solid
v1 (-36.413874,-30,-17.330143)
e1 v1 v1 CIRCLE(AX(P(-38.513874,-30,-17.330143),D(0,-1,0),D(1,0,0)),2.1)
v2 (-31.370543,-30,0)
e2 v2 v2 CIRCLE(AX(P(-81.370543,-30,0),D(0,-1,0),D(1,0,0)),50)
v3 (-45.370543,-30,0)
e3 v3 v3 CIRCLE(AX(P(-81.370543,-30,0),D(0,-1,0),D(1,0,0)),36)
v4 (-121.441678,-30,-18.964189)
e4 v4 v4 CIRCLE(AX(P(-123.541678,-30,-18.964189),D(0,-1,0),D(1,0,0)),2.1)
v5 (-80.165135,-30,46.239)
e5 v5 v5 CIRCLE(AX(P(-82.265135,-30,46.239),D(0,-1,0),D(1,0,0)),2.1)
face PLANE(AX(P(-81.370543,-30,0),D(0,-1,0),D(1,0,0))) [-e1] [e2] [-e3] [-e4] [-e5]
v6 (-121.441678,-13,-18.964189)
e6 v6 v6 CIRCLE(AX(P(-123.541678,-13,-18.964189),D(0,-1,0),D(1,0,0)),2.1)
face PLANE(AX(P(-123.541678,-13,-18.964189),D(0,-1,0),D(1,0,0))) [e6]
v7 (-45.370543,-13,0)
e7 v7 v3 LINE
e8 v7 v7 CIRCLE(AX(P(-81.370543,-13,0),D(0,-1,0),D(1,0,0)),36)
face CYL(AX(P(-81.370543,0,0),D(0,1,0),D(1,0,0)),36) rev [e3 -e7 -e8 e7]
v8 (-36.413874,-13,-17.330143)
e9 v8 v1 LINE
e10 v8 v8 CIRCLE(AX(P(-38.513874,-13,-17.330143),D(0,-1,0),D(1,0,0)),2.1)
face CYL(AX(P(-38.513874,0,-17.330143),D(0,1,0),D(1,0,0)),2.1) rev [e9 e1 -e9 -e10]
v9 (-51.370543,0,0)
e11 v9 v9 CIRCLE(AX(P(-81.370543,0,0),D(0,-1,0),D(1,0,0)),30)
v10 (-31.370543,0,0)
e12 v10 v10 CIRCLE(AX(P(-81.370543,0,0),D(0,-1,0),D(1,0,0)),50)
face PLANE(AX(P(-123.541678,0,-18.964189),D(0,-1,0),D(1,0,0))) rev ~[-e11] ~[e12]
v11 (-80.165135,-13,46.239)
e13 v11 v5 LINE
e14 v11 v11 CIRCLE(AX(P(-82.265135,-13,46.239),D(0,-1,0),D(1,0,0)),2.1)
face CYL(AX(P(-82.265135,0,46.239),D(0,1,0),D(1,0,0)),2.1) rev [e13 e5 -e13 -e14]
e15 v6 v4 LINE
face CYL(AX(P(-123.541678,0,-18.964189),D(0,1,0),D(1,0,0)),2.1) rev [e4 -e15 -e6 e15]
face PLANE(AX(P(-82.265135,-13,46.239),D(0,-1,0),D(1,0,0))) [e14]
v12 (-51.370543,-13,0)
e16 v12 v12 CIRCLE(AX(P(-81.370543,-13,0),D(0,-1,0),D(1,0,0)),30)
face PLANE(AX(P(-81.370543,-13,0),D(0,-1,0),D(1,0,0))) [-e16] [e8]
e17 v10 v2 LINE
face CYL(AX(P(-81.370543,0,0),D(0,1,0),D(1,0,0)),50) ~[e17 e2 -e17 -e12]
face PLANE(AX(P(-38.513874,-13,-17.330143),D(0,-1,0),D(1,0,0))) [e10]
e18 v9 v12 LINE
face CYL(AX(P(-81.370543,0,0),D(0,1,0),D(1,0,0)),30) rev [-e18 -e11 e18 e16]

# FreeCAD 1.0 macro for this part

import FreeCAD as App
import Part
import Sketcher

doc = App.newDocument("Part")
body = doc.addObject("PartDesign::Body", "Body")

# Sketch on XZ plane
sketch1 = body.newObject("Sketcher::SketchObject", "Sketch")
sketch1.AttachmentSupport = (doc.getObject("XZ_Plane"), [""])
sketch1.MapMode = "FlatFace"
sketch1.addGeometry([
    Part.Circle(App.Vector(-81, 0, 0), App.Vector(0, 0, 1), 36),
    Part.Circle(App.Vector(-81, 0, 0), App.Vector(0, 0, 1), 30),
], False)
sketch1.addConstraint([
    Sketcher.Constraint("Coincident", 1, 3, 0, 3),
    Sketcher.Constraint("PointOnObject", 0, 3, -1),
    Sketcher.Constraint("Diameter", 0, 72.0),
    Sketcher.Constraint("Diameter", 1, 60.0),
    Sketcher.Constraint("DistanceX", 0, 3, -1, 1, 81.370543),
])
pad1 = body.newObject("PartDesign::Pad", "Pad")
pad1.Profile = sketch1
pad1.Length = 13

# Sketch on XZ plane
sketch2 = body.newObject("Sketcher::SketchObject", "Sketch001")
sketch2.AttachmentSupport = (doc.getObject("XZ_Plane"), [""])
sketch2.MapMode = "FlatFace"
sketch2.addGeometry([
    Part.Circle(App.Vector(-81.4, 0, 0), App.Vector(0, 0, 1), 50),  # 0
    Part.Circle(App.Vector(-123.5, -19, 0), App.Vector(0, 0, 1), 2.1),  # 1
    Part.Circle(App.Vector(-81.4, 0, 0), App.Vector(0, 0, 1), 36),  # 2
    Part.Circle(App.Vector(-38.5, -17.3, 0), App.Vector(0, 0, 1), 2.1),  # 3
    Part.Circle(App.Vector(-82.3, 46.2, 0), App.Vector(0, 0, 1), 2.1),  # 4
], False)
sketch2.addConstraint([
    Sketcher.Constraint("Coincident", 2, 3, 0, 3),
    Sketcher.Constraint("Equal", 1, 3),
    Sketcher.Constraint("Equal", 3, 4),
    Sketcher.Constraint("PointOnObject", 0, 3, -1),
    Sketcher.Constraint("Diameter", 0, 100.0),
    Sketcher.Constraint("Diameter", 2, 72.0),
    Sketcher.Constraint("Diameter", 1, 4.2),
    Sketcher.Constraint("DistanceY", -1, 1, 4, 3, 46.239),
    Sketcher.Constraint("DistanceX", 1, 3, -1, 1, 123.541678),
    Sketcher.Constraint("DistanceY", 1, 3, -1, 1, 18.964189),
    Sketcher.Constraint("DistanceX", 0, 3, 3, 3, 42.856669),
    Sketcher.Constraint("DistanceX", 4, 3, 3, 3, 43.751261),
    Sketcher.Constraint("DistanceX", 0, 3, -1, 1, 81.370543),
    Sketcher.Constraint("DistanceY", 3, 3, -1, 1, 17.330143),
])
pad2 = body.newObject("PartDesign::Pad", "Pad001")
pad2.Profile = sketch2
pad2.Length = 30

# Sketch on XZ plane
sketch3 = body.newObject("Sketcher::SketchObject", "Sketch002")
sketch3.AttachmentSupport = (doc.getObject("XZ_Plane"), [""])
sketch3.MapMode = "FlatFace"
sketch3.addGeometry([
    Part.Circle(App.Vector(-123.5, -19, 0), App.Vector(0, 0, 1), 2.1),
    Part.Circle(App.Vector(-82.3, 46.2, 0), App.Vector(0, 0, 1), 2.1),
    Part.Circle(App.Vector(-38.5, -17.3, 0), App.Vector(0, 0, 1), 2.1),
], False)
sketch3.addConstraint([
    Sketcher.Constraint("Equal", 0, 1),
    Sketcher.Constraint("Equal", 1, 2),
    Sketcher.Constraint("Diameter", 0, 4.2),
    Sketcher.Constraint("DistanceY", -1, 1, 1, 3, 46.239),
    Sketcher.Constraint("DistanceX", 0, 3, -1, 1, 123.541678),
    Sketcher.Constraint("DistanceY", 0, 3, -1, 1, 18.964189),
    Sketcher.Constraint("DistanceX", 1, 3, 2, 3, 43.751261),
    Sketcher.Constraint("DistanceX", 1, 3, -1, 1, 82.265135),
    Sketcher.Constraint("DistanceY", 2, 3, -1, 1, 17.330143),
])
pad3 = body.newObject("PartDesign::Pad", "Pad002")
pad3.Profile = sketch3
pad3.Length = 13

doc.recompute()
